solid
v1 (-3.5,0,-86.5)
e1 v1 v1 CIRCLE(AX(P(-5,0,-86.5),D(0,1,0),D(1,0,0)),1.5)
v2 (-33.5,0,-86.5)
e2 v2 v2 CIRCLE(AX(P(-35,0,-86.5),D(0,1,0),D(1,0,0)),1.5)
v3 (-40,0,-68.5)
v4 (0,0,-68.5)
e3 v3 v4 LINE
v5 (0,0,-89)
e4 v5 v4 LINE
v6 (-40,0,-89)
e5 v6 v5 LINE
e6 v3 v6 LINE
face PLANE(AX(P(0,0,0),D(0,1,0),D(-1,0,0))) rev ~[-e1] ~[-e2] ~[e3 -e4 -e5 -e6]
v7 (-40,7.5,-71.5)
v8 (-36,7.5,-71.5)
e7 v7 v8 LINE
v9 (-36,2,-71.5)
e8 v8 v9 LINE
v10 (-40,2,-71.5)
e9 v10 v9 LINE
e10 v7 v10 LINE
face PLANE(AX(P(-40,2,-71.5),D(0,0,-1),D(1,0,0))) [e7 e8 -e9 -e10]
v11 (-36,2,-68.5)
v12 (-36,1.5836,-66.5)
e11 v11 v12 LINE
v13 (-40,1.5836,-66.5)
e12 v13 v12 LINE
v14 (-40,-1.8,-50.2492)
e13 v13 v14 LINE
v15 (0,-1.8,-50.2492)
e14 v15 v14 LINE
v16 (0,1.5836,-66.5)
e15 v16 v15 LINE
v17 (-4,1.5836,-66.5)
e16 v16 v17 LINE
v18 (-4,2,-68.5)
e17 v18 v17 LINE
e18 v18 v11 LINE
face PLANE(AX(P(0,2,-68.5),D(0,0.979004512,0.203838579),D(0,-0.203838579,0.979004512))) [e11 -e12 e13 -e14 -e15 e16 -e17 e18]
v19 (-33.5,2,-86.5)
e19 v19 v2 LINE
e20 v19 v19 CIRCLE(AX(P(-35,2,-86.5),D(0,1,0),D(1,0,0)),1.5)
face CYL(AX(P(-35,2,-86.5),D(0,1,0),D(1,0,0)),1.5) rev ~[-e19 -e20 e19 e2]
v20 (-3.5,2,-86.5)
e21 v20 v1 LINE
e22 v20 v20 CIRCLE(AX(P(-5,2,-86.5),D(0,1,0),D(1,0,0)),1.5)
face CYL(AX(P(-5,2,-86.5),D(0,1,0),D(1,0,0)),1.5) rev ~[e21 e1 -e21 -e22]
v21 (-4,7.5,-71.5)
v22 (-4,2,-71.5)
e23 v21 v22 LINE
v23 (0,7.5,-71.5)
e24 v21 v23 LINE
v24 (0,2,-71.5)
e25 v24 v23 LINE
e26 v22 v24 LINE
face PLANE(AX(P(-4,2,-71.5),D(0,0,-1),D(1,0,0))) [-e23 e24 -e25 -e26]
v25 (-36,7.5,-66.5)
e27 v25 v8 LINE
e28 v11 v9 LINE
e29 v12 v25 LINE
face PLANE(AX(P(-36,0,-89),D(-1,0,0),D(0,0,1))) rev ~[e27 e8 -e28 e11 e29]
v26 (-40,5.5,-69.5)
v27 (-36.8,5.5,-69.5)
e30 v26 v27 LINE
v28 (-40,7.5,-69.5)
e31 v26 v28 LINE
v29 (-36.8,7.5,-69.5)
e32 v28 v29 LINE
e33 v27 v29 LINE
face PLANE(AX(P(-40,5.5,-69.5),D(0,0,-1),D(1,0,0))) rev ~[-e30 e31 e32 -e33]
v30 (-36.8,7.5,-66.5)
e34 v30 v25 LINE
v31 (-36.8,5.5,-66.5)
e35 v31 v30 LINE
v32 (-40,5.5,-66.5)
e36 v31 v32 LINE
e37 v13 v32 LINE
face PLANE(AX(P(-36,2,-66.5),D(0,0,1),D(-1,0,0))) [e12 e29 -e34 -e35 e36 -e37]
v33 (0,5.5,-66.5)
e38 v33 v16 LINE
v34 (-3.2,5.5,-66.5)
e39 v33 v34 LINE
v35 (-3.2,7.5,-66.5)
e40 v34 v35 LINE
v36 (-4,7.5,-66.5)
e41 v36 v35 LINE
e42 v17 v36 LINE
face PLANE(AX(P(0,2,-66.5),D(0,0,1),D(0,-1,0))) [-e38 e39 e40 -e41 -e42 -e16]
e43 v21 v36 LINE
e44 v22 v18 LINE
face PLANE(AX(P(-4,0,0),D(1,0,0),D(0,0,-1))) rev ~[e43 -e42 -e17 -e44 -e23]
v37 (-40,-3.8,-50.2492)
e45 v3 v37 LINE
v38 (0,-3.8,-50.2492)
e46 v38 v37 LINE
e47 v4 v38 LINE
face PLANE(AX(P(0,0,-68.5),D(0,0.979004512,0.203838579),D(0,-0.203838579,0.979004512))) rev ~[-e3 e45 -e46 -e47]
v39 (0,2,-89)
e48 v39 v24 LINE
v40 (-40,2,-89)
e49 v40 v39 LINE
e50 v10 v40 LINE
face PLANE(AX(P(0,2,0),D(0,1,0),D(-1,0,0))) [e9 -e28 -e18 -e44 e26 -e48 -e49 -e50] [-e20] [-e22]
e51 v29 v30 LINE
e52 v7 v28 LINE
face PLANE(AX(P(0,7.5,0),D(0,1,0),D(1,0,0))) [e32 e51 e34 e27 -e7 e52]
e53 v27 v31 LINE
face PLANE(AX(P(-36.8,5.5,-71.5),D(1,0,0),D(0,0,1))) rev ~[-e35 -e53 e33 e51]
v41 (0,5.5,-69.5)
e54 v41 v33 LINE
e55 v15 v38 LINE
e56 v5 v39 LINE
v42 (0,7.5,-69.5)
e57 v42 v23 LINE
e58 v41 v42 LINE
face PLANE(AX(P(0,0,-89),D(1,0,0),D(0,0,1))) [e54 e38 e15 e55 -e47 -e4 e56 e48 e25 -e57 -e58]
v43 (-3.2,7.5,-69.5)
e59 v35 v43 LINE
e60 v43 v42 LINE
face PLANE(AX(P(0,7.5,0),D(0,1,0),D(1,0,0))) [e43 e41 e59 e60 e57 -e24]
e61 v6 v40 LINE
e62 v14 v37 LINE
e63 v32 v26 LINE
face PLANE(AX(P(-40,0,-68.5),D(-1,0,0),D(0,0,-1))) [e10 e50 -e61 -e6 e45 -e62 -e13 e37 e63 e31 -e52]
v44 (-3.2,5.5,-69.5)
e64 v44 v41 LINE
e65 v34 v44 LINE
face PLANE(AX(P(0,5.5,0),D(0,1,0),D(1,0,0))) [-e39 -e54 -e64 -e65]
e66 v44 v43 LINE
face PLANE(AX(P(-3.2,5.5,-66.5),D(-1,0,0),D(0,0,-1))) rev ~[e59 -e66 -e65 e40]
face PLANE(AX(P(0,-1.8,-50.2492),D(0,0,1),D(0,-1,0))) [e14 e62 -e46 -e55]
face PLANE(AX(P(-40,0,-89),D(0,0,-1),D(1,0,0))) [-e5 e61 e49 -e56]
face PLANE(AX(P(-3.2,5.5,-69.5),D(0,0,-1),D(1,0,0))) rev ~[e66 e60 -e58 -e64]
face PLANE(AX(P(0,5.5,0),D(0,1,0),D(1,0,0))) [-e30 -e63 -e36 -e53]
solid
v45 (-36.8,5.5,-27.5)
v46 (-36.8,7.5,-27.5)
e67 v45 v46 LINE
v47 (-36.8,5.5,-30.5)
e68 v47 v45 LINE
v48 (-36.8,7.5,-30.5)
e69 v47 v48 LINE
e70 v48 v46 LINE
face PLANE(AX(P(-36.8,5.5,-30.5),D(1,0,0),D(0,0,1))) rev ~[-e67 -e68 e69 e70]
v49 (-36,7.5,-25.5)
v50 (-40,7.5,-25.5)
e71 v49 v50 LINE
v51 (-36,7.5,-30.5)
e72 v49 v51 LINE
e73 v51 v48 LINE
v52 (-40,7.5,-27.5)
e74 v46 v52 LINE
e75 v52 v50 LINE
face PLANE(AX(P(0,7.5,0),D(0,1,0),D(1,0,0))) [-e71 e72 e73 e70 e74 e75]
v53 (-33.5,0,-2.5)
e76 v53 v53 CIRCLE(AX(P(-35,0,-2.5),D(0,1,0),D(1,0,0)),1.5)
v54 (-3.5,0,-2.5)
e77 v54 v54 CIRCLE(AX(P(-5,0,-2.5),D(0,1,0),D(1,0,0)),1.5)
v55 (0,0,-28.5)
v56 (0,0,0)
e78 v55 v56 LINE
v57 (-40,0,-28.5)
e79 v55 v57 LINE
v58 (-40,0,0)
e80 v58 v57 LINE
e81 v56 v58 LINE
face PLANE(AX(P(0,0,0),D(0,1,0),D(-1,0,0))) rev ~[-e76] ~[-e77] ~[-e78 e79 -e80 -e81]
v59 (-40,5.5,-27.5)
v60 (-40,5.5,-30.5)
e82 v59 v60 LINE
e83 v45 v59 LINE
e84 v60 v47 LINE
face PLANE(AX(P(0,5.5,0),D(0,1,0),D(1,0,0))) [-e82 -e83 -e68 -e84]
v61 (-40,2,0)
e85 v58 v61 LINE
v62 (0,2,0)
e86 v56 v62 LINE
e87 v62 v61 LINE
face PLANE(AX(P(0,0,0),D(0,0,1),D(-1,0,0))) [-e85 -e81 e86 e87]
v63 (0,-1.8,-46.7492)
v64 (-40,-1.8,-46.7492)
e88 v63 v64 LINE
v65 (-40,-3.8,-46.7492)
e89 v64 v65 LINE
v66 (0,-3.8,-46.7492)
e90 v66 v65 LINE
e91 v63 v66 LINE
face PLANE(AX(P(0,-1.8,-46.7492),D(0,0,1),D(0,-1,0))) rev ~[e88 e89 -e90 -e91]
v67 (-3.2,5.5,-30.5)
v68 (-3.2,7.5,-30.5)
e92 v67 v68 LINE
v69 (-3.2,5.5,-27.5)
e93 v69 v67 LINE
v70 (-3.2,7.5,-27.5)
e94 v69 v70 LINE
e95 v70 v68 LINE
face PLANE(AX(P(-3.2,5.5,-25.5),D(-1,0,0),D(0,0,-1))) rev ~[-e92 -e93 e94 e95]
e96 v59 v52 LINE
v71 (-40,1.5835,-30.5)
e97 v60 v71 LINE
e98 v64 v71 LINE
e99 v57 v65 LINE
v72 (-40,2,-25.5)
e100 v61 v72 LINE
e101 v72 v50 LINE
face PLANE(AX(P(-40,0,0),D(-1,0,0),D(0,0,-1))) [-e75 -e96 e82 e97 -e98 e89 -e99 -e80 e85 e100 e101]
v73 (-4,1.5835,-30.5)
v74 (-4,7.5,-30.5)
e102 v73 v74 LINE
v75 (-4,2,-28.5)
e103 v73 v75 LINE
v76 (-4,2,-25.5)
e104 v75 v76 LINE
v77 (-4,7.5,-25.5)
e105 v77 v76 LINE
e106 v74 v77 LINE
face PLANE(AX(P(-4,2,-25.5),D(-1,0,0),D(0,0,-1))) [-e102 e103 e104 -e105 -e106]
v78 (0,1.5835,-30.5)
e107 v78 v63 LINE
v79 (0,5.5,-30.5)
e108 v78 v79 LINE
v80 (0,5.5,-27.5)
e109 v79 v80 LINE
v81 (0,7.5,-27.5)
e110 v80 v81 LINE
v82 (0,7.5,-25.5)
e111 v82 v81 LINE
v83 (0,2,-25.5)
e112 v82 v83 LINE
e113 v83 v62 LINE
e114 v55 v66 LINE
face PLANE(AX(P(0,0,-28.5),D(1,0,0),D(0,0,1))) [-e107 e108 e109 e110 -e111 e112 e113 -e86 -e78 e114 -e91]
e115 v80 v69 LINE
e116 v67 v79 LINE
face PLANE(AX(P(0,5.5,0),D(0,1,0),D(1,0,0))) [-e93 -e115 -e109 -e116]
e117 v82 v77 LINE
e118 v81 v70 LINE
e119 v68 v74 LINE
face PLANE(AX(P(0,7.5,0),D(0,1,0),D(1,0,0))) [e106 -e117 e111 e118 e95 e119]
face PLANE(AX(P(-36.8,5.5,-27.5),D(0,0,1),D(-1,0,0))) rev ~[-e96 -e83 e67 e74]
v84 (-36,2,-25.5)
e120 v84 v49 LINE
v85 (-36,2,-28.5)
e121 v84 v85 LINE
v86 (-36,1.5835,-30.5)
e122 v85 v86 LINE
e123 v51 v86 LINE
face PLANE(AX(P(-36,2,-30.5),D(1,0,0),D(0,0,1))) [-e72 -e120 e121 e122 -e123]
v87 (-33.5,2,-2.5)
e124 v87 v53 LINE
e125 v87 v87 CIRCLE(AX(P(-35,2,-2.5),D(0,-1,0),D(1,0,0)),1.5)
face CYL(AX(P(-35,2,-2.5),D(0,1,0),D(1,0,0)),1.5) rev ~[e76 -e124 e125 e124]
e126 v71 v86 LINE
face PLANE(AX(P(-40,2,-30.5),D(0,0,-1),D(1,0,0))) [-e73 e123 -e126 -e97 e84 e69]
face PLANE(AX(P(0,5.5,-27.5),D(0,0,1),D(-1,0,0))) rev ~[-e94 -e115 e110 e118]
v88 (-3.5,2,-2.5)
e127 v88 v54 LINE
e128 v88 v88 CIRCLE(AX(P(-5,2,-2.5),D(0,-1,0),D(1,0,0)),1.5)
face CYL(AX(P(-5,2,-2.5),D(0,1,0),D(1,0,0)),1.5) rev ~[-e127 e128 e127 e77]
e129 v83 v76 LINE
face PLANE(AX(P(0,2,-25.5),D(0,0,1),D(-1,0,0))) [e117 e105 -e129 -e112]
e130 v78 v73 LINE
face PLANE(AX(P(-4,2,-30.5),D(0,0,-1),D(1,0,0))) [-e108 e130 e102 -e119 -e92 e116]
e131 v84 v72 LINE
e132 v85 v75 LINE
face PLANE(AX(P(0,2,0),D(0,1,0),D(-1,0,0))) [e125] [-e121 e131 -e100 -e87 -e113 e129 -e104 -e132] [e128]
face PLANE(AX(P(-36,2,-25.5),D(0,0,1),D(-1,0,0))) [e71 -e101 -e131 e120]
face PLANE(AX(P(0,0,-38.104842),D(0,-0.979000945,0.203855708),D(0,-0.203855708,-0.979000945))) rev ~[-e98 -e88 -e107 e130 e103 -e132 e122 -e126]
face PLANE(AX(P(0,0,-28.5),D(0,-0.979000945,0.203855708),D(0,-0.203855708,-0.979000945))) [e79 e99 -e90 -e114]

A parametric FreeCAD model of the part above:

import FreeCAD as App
import Part
import Sketcher
from FreeCAD import Vector
Q = App.Units.Quantity

doc = App.newDocument("Part")
body = doc.addObject("PartDesign::Body", "Body")
body.AllowCompound = True

# Sketch on XZ plane
sketch1 = body.newObject("Sketcher::SketchObject", "Sketch")
sketch1.AttachmentSupport = (doc.getObject("XZ_Plane"), [""])
sketch1.MapMode = "FlatFace"
sketch1.addGeometry([
    Part.LineSegment(Vector(-40, -68, 0), Vector(0, -68, 0)),  # 0
    Part.LineSegment(Vector(0, -68, 0), Vector(0, -89, 0)),  # 1
    Part.LineSegment(Vector(0, -89, 0), Vector(-40, -89, 0)),  # 2
    Part.LineSegment(Vector(-40, -89, 0), Vector(-40, -68, 0)),  # 3
    Part.LineSegment(Vector(-40, 0, 0), Vector(0, 0, 0)),  # 4
    Part.LineSegment(Vector(0, 0, 0), Vector(0, -28, 0)),  # 5
    Part.LineSegment(Vector(0, -28, 0), Vector(-40, -28, 0)),  # 6
    Part.LineSegment(Vector(-40, -28, 0), Vector(-40, 0, 0)),  # 7
], False)
sketch1.addConstraint([
    Sketcher.Constraint("Coincident", 0, 2, 1, 1),
    Sketcher.Constraint("Coincident", 1, 2, 2, 1),
    Sketcher.Constraint("Coincident", 2, 2, 3, 1),
    Sketcher.Constraint("Coincident", 3, 2, 0, 1),
    Sketcher.Constraint("Coincident", 4, 2, 5, 1),
    Sketcher.Constraint("Coincident", 5, 2, 6, 1),
    Sketcher.Constraint("Coincident", 6, 2, 7, 1),
    Sketcher.Constraint("Coincident", 7, 2, 4, 1),
    Sketcher.Constraint("Horizontal", 0),
    Sketcher.Constraint("Vertical", 1),
    Sketcher.Constraint("Horizontal", 2),
    Sketcher.Constraint("Vertical", 3),
    Sketcher.Constraint("Horizontal", 4),
    Sketcher.Constraint("Vertical", 5),
    Sketcher.Constraint("Horizontal", 6),
    Sketcher.Constraint("Vertical", 7),
    Sketcher.Constraint("Coincident", 4, 2, -1, 1),
    Sketcher.Constraint("PointOnObject", 0, 2, -2),
    Sketcher.Constraint("Vertical", 3, 2, 6, 2),
    Sketcher.Constraint("DistanceX", 0, 1, 0, 2, Q("40 mm")),
    Sketcher.Constraint("DistanceY", 1, 2, 1, 1, Q("20.5 mm")),
    Sketcher.Constraint("DistanceY", 5, 2, 5, 1, Q("28.5 mm")),
    Sketcher.Constraint("DistanceY", 0, 2, 5, 2, Q("40 mm")),
])
pad1 = body.newObject("PartDesign::Pad", "Pad")
pad1.Profile = sketch1
pad1.Length = 2
pad1.Reversed = True

# Sketch on YZ plane
sketch2 = body.newObject("Sketcher::SketchObject", "Sketch001")
sketch2.AttachmentSupport = (doc.getObject("YZ_Plane"), [""])
sketch2.MapMode = "FlatFace"
sketch2.addGeometry([
    Part.LineSegment(Vector(-1.8, -50.2, 0), Vector(-3.8, -50.2, 0)),  # 0
    Part.LineSegment(Vector(-3.8, -50.2, 0), Vector(0, -68.5, 0)),  # 1
    Part.LineSegment(Vector(0, -68.5, 0), Vector(2, -68.5, 0)),  # 2
    Part.LineSegment(Vector(2, -68.5, 0), Vector(-1.8, -50.2, 0)),  # 3
    Part.LineSegment(Vector(-1.8, -46.7, 0), Vector(2, -28.5, 0)),  # 4
    Part.LineSegment(Vector(2, -28.5, 0), Vector(0, -28.5, 0)),  # 5
    Part.LineSegment(Vector(0, -28.5, 0), Vector(-3.8, -46.7, 0)),  # 6
    Part.LineSegment(Vector(-3.8, -46.7, 0), Vector(-1.8, -46.7, 0)),  # 7
], False)
sketch2.addConstraint([
    Sketcher.Constraint("Coincident", 0, 2, 1, 1),
    Sketcher.Constraint("Coincident", 1, 2, 2, 1),
    Sketcher.Constraint("Coincident", 2, 2, 3, 1),
    Sketcher.Constraint("Coincident", 3, 2, 0, 1),
    Sketcher.Constraint("Coincident", 4, 2, 5, 1),
    Sketcher.Constraint("Coincident", 5, 2, 6, 1),
    Sketcher.Constraint("Coincident", 6, 2, 7, 1),
    Sketcher.Constraint("Coincident", 7, 2, 4, 1),
    Sketcher.Constraint("Horizontal", 0),
    Sketcher.Constraint("Horizontal", 2),
    Sketcher.Constraint("Horizontal", 5),
    Sketcher.Constraint("Horizontal", 7),
    Sketcher.Constraint("PointOnObject", 1, 2, -2),
    Sketcher.Constraint("PointOnObject", 5, 2, -2),
    Sketcher.Constraint("Parallel", 1, 3),
    Sketcher.Constraint("Parallel", 4, 6),
    Sketcher.Constraint("Vertical", 2, 2, 4, 2),
    Sketcher.Constraint("Vertical", 0, 2, 6, 2),
    Sketcher.Constraint("DistanceX", 0, 2, 0, 1, Q("2 mm")),
    Sketcher.Constraint("DistanceY", 2, 2, 4, 2, Q("40 mm")),
    Sketcher.Constraint("DistanceX", 0, 2, -1, 1, Q("3.8 mm")),
    Sketcher.Constraint("DistanceY", 1, 2, -1, 1, Q("68.5 mm")),
    Sketcher.Constraint("DistanceY", 0, 2, 6, 2, Q("3.5 mm")),
    Sketcher.Constraint("Distance", 1, Q("18.6422 mm")),
])
pad2 = body.newObject("PartDesign::Pad", "Pad001")
pad2.Profile = sketch2
pad2.Length = 40
pad2.Reversed = True

# Sketch on XZ plane
sketch3 = body.newObject("Sketcher::SketchObject", "Sketch002")
sketch3.AttachmentSupport = (doc.getObject("XZ_Plane"), [""])
sketch3.MapMode = "FlatFace"
sketch3.AttachmentOffset = App.Placement(Vector(0, 0, -2), App.Rotation())
sketch3.addGeometry([
    Part.LineSegment(Vector(-36, -30.5, 0), Vector(-40, -30.5, 0)),  # 0
    Part.LineSegment(Vector(-40, -30.5, 0), Vector(-40, -25.5, 0)),  # 1
    Part.LineSegment(Vector(-40, -25.5, 0), Vector(-36, -25.5, 0)),  # 2
    Part.LineSegment(Vector(-36, -25.5, 0), Vector(-36, -30.5, 0)),  # 3
    Part.LineSegment(Vector(-36, -66.5, 0), Vector(-36, -71.5, 0)),  # 4
    Part.LineSegment(Vector(-36, -71.5, 0), Vector(-40, -71.5, 0)),  # 5
    Part.LineSegment(Vector(-40, -71.5, 0), Vector(-40, -66.5, 0)),  # 6
    Part.LineSegment(Vector(-40, -66.5, 0), Vector(-36, -66.5, 0)),  # 7
    Part.LineSegment(Vector(0, -25.5, 0), Vector(0, -30.5, 0)),  # 8
    Part.LineSegment(Vector(0, -30.5, 0), Vector(-4, -30.5, 0)),  # 9
    Part.LineSegment(Vector(-4, -30.5, 0), Vector(-4, -25.5, 0)),  # 10
    Part.LineSegment(Vector(-4, -25.5, 0), Vector(0, -25.5, 0)),  # 11
    Part.LineSegment(Vector(0, -71.5, 0), Vector(-4, -71.5, 0)),  # 12
    Part.LineSegment(Vector(-4, -71.5, 0), Vector(-4, -66.5, 0)),  # 13
    Part.LineSegment(Vector(-4, -66.5, 0), Vector(0, -66.5, 0)),  # 14
    Part.LineSegment(Vector(0, -66.5, 0), Vector(0, -71.5, 0)),  # 15
], False)
sketch3.addConstraint([
    Sketcher.Constraint("Coincident", 0, 2, 1, 1),
    Sketcher.Constraint("Coincident", 1, 2, 2, 1),
    Sketcher.Constraint("Coincident", 2, 2, 3, 1),
    Sketcher.Constraint("Coincident", 3, 2, 0, 1),
    Sketcher.Constraint("Coincident", 4, 2, 5, 1),
    Sketcher.Constraint("Coincident", 5, 2, 6, 1),
    Sketcher.Constraint("Coincident", 6, 2, 7, 1),
    Sketcher.Constraint("Coincident", 7, 2, 4, 1),
    Sketcher.Constraint("Coincident", 8, 2, 9, 1),
    Sketcher.Constraint("Coincident", 9, 2, 10, 1),
    Sketcher.Constraint("Coincident", 10, 2, 11, 1),
    Sketcher.Constraint("Coincident", 11, 2, 8, 1),
    Sketcher.Constraint("Coincident", 12, 2, 13, 1),
    Sketcher.Constraint("Coincident", 13, 2, 14, 1),
    Sketcher.Constraint("Coincident", 14, 2, 15, 1),
    Sketcher.Constraint("Coincident", 15, 2, 12, 1),
    Sketcher.Constraint("Horizontal", 0),
    Sketcher.Constraint("Vertical", 1),
    Sketcher.Constraint("Horizontal", 2),
    Sketcher.Constraint("Vertical", 3),
    Sketcher.Constraint("Vertical", 4),
    Sketcher.Constraint("Horizontal", 5),
    Sketcher.Constraint("Vertical", 6),
    Sketcher.Constraint("Horizontal", 7),
    Sketcher.Constraint("Vertical", 8),
    Sketcher.Constraint("Horizontal", 9),
    Sketcher.Constraint("Vertical", 10),
    Sketcher.Constraint("Horizontal", 11),
    Sketcher.Constraint("Horizontal", 12),
    Sketcher.Constraint("Vertical", 13),
    Sketcher.Constraint("Horizontal", 14),
    Sketcher.Constraint("Vertical", 15),
    Sketcher.Constraint("PointOnObject", 8, 2, -2),
    Sketcher.Constraint("PointOnObject", 14, 2, -2),
    Sketcher.Constraint("Horizontal", 3, 2, 8, 2),
    Sketcher.Constraint("Horizontal", 2, 2, 10, 2),
    Sketcher.Constraint("Horizontal", 5, 2, 12, 2),
    Sketcher.Constraint("Horizontal", 7, 2, 13, 2),
    Sketcher.Constraint("Vertical", 3, 2, 4, 2),
    Sketcher.Constraint("Vertical", 1, 2, 5, 2),
    Sketcher.Constraint("Vertical", 10, 2, 12, 2),
    Sketcher.Constraint("Equal", 7, 9),
    Sketcher.Constraint("Equal", 3, 4),
    Sketcher.Constraint("DistanceX", 0, 2, 0, 1, Q("4 mm")),
    Sketcher.Constraint("DistanceX", 2, 2, -1, 1, Q("36 mm")),
    Sketcher.Constraint("DistanceY", 4, 2, 3, 2, Q("41 mm")),
    Sketcher.Constraint("DistanceY", 6, 2, 0, 2, Q("36 mm")),
    Sketcher.Constraint("DistanceY", 0, 2, -1, 1, Q("30.5 mm")),
])
pad3 = body.newObject("PartDesign::Pad", "Pad002")
pad3.Profile = sketch3
pad3.Length = 3.5
pad3.Reversed = True

# Sketch on YZ plane
sketch4 = body.newObject("Sketcher::SketchObject", "Sketch003")
sketch4.AttachmentSupport = (doc.getObject("YZ_Plane"), [""])
sketch4.MapMode = "FlatFace"
sketch4.AttachmentOffset = App.Placement(Vector(0, 0, -40), App.Rotation())
sketch4.addGeometry([
    Part.LineSegment(Vector(1.58, -66.5, 0), Vector(2, -66.5, 0)),  # 0
    Part.LineSegment(Vector(2, -66.5, 0), Vector(2, -68.5, 0)),  # 1
    Part.LineSegment(Vector(2, -68.5, 0), Vector(1.58, -66.5, 0)),  # 2
    Part.LineSegment(Vector(2, -28.5, 0), Vector(2, -30.5, 0)),  # 3
    Part.LineSegment(Vector(2, -30.5, 0), Vector(1.58, -30.5, 0)),  # 4
    Part.LineSegment(Vector(1.58, -30.5, 0), Vector(2, -28.5, 0)),  # 5
], False)
sketch4.addConstraint([
    Sketcher.Constraint("Coincident", 0, 2, 1, 1),
    Sketcher.Constraint("Coincident", 1, 2, 2, 1),
    Sketcher.Constraint("Coincident", 2, 2, 0, 1),
    Sketcher.Constraint("Coincident", 3, 2, 4, 1),
    Sketcher.Constraint("Coincident", 4, 2, 5, 1),
    Sketcher.Constraint("Coincident", 5, 2, 3, 1),
    Sketcher.Constraint("Horizontal", 0),
    Sketcher.Constraint("Vertical", 1),
    Sketcher.Constraint("Vertical", 3),
    Sketcher.Constraint("Horizontal", 4),
    Sketcher.Constraint("Vertical", 1, 2, 3, 2),
    Sketcher.Constraint("Vertical", 2, 2, 4, 2),
    Sketcher.Constraint("Equal", 1, 3),
    Sketcher.Constraint("DistanceY", 1, 2, 1, 1, Q("2 mm")),
    Sketcher.Constraint("DistanceX", -1, 1, 0, 2, Q("2 mm")),
    Sketcher.Constraint("DistanceY", 0, 2, 3, 2, Q("36 mm")),
    Sketcher.Constraint("DistanceY", 0, 2, -1, 1, Q("66.5 mm")),
    Sketcher.Constraint("Angle", 2, Q("101.761 deg")),
])
pad4 = body.newObject("PartDesign::Pad", "Pad003")
pad4.Profile = sketch4
pad4.Length = 4

# Sketch on XZ plane
sketch5 = body.newObject("Sketcher::SketchObject", "Sketch004")
sketch5.AttachmentSupport = (doc.getObject("XZ_Plane"), [""])
sketch5.MapMode = "FlatFace"
sketch5.AttachmentOffset = App.Placement(Vector(0, 0, -5.5), App.Rotation())
sketch5.addGeometry([
    Part.LineSegment(Vector(-36.8, -25.5, 0), Vector(-36, -25.5, 0)),  # 0
    Part.LineSegment(Vector(-36, -25.5, 0), Vector(-36, -30.5, 0)),  # 1
    Part.LineSegment(Vector(-36, -30.5, 0), Vector(-36.8, -30.5, 0)),  # 2
    Part.LineSegment(Vector(-36.8, -30.5, 0), Vector(-36.8, -25.5, 0)),  # 3
    Part.LineSegment(Vector(-36.8, -66.5, 0), Vector(-36, -66.5, 0)),  # 4
    Part.LineSegment(Vector(-36, -66.5, 0), Vector(-36, -71.5, 0)),  # 5
    Part.LineSegment(Vector(-36, -71.5, 0), Vector(-36.8, -71.5, 0)),  # 6
    Part.LineSegment(Vector(-36.8, -71.5, 0), Vector(-36.8, -66.5, 0)),  # 7
    Part.LineSegment(Vector(-3.2, -30.5, 0), Vector(-4, -30.5, 0)),  # 8
    Part.LineSegment(Vector(-4, -30.5, 0), Vector(-4, -25.5, 0)),  # 9
    Part.LineSegment(Vector(-4, -25.5, 0), Vector(-3.2, -25.5, 0)),  # 10
    Part.LineSegment(Vector(-3.2, -25.5, 0), Vector(-3.2, -30.5, 0)),  # 11
    Part.LineSegment(Vector(-3.2, -71.5, 0), Vector(-4, -71.5, 0)),  # 12
    Part.LineSegment(Vector(-4, -71.5, 0), Vector(-4, -66.5, 0)),  # 13
    Part.LineSegment(Vector(-4, -66.5, 0), Vector(-3.2, -66.5, 0)),  # 14
    Part.LineSegment(Vector(-3.2, -66.5, 0), Vector(-3.2, -71.5, 0)),  # 15
], False)
sketch5.addConstraint([
    Sketcher.Constraint("Coincident", 0, 2, 1, 1),
    Sketcher.Constraint("Coincident", 1, 2, 2, 1),
    Sketcher.Constraint("Coincident", 2, 2, 3, 1),
    Sketcher.Constraint("Coincident", 3, 2, 0, 1),
    Sketcher.Constraint("Coincident", 4, 2, 5, 1),
    Sketcher.Constraint("Coincident", 5, 2, 6, 1),
    Sketcher.Constraint("Coincident", 6, 2, 7, 1),
    Sketcher.Constraint("Coincident", 7, 2, 4, 1),
    Sketcher.Constraint("Coincident", 8, 2, 9, 1),
    Sketcher.Constraint("Coincident", 9, 2, 10, 1),
    Sketcher.Constraint("Coincident", 10, 2, 11, 1),
    Sketcher.Constraint("Coincident", 11, 2, 8, 1),
    Sketcher.Constraint("Coincident", 12, 2, 13, 1),
    Sketcher.Constraint("Coincident", 13, 2, 14, 1),
    Sketcher.Constraint("Coincident", 14, 2, 15, 1),
    Sketcher.Constraint("Coincident", 15, 2, 12, 1),
    Sketcher.Constraint("Horizontal", 0),
    Sketcher.Constraint("Vertical", 1),
    Sketcher.Constraint("Horizontal", 2),
    Sketcher.Constraint("Vertical", 3),
    Sketcher.Constraint("Horizontal", 4),
    Sketcher.Constraint("Vertical", 5),
    Sketcher.Constraint("Horizontal", 6),
    Sketcher.Constraint("Vertical", 7),
    Sketcher.Constraint("Horizontal", 8),
    Sketcher.Constraint("Vertical", 9),
    Sketcher.Constraint("Horizontal", 10),
    Sketcher.Constraint("Vertical", 11),
    Sketcher.Constraint("Horizontal", 12),
    Sketcher.Constraint("Vertical", 13),
    Sketcher.Constraint("Horizontal", 14),
    Sketcher.Constraint("Vertical", 15),
    Sketcher.Constraint("Horizontal", 2, 2, 8, 2),
    Sketcher.Constraint("Horizontal", 3, 2, 9, 2),
    Sketcher.Constraint("Horizontal", 6, 2, 12, 2),
    Sketcher.Constraint("Horizontal", 7, 2, 13, 2),
    Sketcher.Constraint("Vertical", 1, 2, 4, 2),
    Sketcher.Constraint("Vertical", 3, 2, 6, 2),
    Sketcher.Constraint("Vertical", 9, 2, 12, 2),
    Sketcher.Constraint("Vertical", 11, 2, 14, 2),
    Sketcher.Constraint("Equal", 6, 8),
    Sketcher.Constraint("Equal", 3, 5),
    Sketcher.Constraint("DistanceX", 0, 1, 0, 2, Q("0.8 mm")),
    Sketcher.Constraint("DistanceY", 4, 2, 0, 2, Q("41 mm")),
    Sketcher.Constraint("DistanceX", 2, 2, 8, 2, Q("32.8 mm")),
    Sketcher.Constraint("DistanceY", 1, 2, 1, 1, Q("5 mm")),
    Sketcher.Constraint("DistanceX", 0, 2, -1, 1, Q("36 mm")),
    Sketcher.Constraint("DistanceY", 0, 2, -1, 1, Q("25.5 mm")),
])
pad5 = body.newObject("PartDesign::Pad", "Pad004")
pad5.Profile = sketch5
pad5.Length = 2
pad5.Reversed = True

# Sketch on XZ plane
sketch6 = body.newObject("Sketcher::SketchObject", "Sketch005")
sketch6.AttachmentSupport = (doc.getObject("XZ_Plane"), [""])
sketch6.MapMode = "FlatFace"
sketch6.AttachmentOffset = App.Placement(Vector(0, 0, -5.5), App.Rotation())
sketch6.addGeometry([
    Part.LineSegment(Vector(-36.8, -25.5, 0), Vector(-36.8, -27.5, 0)),  # 0
    Part.LineSegment(Vector(-36.8, -27.5, 0), Vector(-40, -27.5, 0)),  # 1
    Part.LineSegment(Vector(-40, -27.5, 0), Vector(-40, -25.5, 0)),  # 2
    Part.LineSegment(Vector(-40, -25.5, 0), Vector(-36.8, -25.5, 0)),  # 3
    Part.LineSegment(Vector(-36.8, -69.5, 0), Vector(-36.8, -71.5, 0)),  # 4
    Part.LineSegment(Vector(-36.8, -71.5, 0), Vector(-40, -71.5, 0)),  # 5
    Part.LineSegment(Vector(-40, -71.5, 0), Vector(-40, -69.5, 0)),  # 6
    Part.LineSegment(Vector(-40, -69.5, 0), Vector(-36.8, -69.5, 0)),  # 7
    Part.LineSegment(Vector(0, -71.5, 0), Vector(-3.2, -71.5, 0)),  # 8
    Part.LineSegment(Vector(-3.2, -71.5, 0), Vector(-3.2, -69.5, 0)),  # 9
    Part.LineSegment(Vector(-3.2, -69.5, 0), Vector(0, -69.5, 0)),  # 10
    Part.LineSegment(Vector(0, -69.5, 0), Vector(0, -71.5, 0)),  # 11
    Part.LineSegment(Vector(-3.2, -27.5, 0), Vector(-3.2, -25.5, 0)),  # 12
    Part.LineSegment(Vector(-3.2, -25.5, 0), Vector(0, -25.5, 0)),  # 13
    Part.LineSegment(Vector(0, -25.5, 0), Vector(0, -27.5, 0)),  # 14
    Part.LineSegment(Vector(0, -27.5, 0), Vector(-3.2, -27.5, 0)),  # 15
], False)
sketch6.addConstraint([
    Sketcher.Constraint("Coincident", 0, 2, 1, 1),
    Sketcher.Constraint("Coincident", 1, 2, 2, 1),
    Sketcher.Constraint("Coincident", 2, 2, 3, 1),
    Sketcher.Constraint("Coincident", 3, 2, 0, 1),
    Sketcher.Constraint("Coincident", 4, 2, 5, 1),
    Sketcher.Constraint("Coincident", 5, 2, 6, 1),
    Sketcher.Constraint("Coincident", 6, 2, 7, 1),
    Sketcher.Constraint("Coincident", 7, 2, 4, 1),
    Sketcher.Constraint("Coincident", 8, 2, 9, 1),
    Sketcher.Constraint("Coincident", 9, 2, 10, 1),
    Sketcher.Constraint("Coincident", 10, 2, 11, 1),
    Sketcher.Constraint("Coincident", 11, 2, 8, 1),
    Sketcher.Constraint("Coincident", 12, 2, 13, 1),
    Sketcher.Constraint("Coincident", 13, 2, 14, 1),
    Sketcher.Constraint("Coincident", 14, 2, 15, 1),
    Sketcher.Constraint("Coincident", 15, 2, 12, 1),
    Sketcher.Constraint("Vertical", 0),
    Sketcher.Constraint("Horizontal", 1),
    Sketcher.Constraint("Vertical", 2),
    Sketcher.Constraint("Horizontal", 3),
    Sketcher.Constraint("Vertical", 4),
    Sketcher.Constraint("Horizontal", 5),
    Sketcher.Constraint("Vertical", 6),
    Sketcher.Constraint("Horizontal", 7),
    Sketcher.Constraint("Horizontal", 8),
    Sketcher.Constraint("Vertical", 9),
    Sketcher.Constraint("Horizontal", 10),
    Sketcher.Constraint("Vertical", 11),
    Sketcher.Constraint("Vertical", 12),
    Sketcher.Constraint("Horizontal", 13),
    Sketcher.Constraint("Vertical", 14),
    Sketcher.Constraint("Horizontal", 15),
    Sketcher.Constraint("PointOnObject", 10, 2, -2),
    Sketcher.Constraint("PointOnObject", 13, 2, -2),
    Sketcher.Constraint("Horizontal", 5, 2, 8, 2),
    Sketcher.Constraint("Horizontal", 7, 2, 9, 2),
    Sketcher.Constraint("Horizontal", 3, 2, 12, 2),
    Sketcher.Constraint("Horizontal", 1, 2, 14, 2),
    Sketcher.Constraint("Vertical", 3, 2, 4, 2),
    Sketcher.Constraint("Vertical", 2, 2, 5, 2),
    Sketcher.Constraint("Vertical", 9, 2, 12, 2),
    Sketcher.Constraint("Equal", 7, 8),
    Sketcher.Constraint("Equal", 2, 4),
    Sketcher.Constraint("DistanceY", 0, 2, 0, 1, Q("2 mm")),
    Sketcher.Constraint("DistanceY", 4, 2, 0, 2, Q("44 mm")),
    Sketcher.Constraint("DistanceX", 0, 2, -1, 1, Q("36.8 mm")),
    Sketcher.Constraint("DistanceX", 1, 2, 1, 1, Q("3.2 mm")),
    Sketcher.Constraint("DistanceY", 0, 2, -1, 1, Q("27.5 mm")),
])
pad6 = body.newObject("PartDesign::Pad", "Pad005")
pad6.Profile = sketch6
pad6.Length = 2
pad6.Reversed = True

# Sketch on YZ plane
sketch7 = body.newObject("Sketcher::SketchObject", "Sketch006")
sketch7.AttachmentSupport = (doc.getObject("YZ_Plane"), [""])
sketch7.MapMode = "FlatFace"
sketch7.addGeometry([
    Part.LineSegment(Vector(2, -30.5, 0), Vector(2, -28.5, 0)),  # 0
    Part.LineSegment(Vector(2, -28.5, 0), Vector(1.58, -30.5, 0)),  # 1
    Part.LineSegment(Vector(1.58, -30.5, 0), Vector(2, -30.5, 0)),  # 2
    Part.LineSegment(Vector(2, -68.5, 0), Vector(2, -66.5, 0)),  # 3
    Part.LineSegment(Vector(2, -66.5, 0), Vector(1.58, -66.5, 0)),  # 4
    Part.LineSegment(Vector(1.58, -66.5, 0), Vector(2, -68.5, 0)),  # 5
], False)
sketch7.addConstraint([
    Sketcher.Constraint("Coincident", 0, 2, 1, 1),
    Sketcher.Constraint("Coincident", 1, 2, 2, 1),
    Sketcher.Constraint("Coincident", 2, 2, 0, 1),
    Sketcher.Constraint("Coincident", 3, 2, 4, 1),
    Sketcher.Constraint("Coincident", 4, 2, 5, 1),
    Sketcher.Constraint("Coincident", 5, 2, 3, 1),
    Sketcher.Constraint("Vertical", 0),
    Sketcher.Constraint("Horizontal", 2),
    Sketcher.Constraint("Vertical", 3),
    Sketcher.Constraint("Horizontal", 4),
    Sketcher.Constraint("Vertical", 2, 2, 3, 2),
    Sketcher.Constraint("Vertical", 1, 2, 4, 2),
    Sketcher.Constraint("Equal", 0, 3),
    Sketcher.Constraint("DistanceY", 0, 1, 0, 2, Q("2 mm")),
    Sketcher.Constraint("DistanceX", -1, 1, 0, 2, Q("2 mm")),
    Sketcher.Constraint("DistanceY", 3, 2, 2, 2, Q("36 mm")),
    Sketcher.Constraint("DistanceY", 0, 2, -1, 1, Q("28.5 mm")),
    Sketcher.Constraint("Distance", 1, Q("2.043 mm")),
])
pad7 = body.newObject("PartDesign::Pad", "Pad006")
pad7.Profile = sketch7
pad7.Length = 4
pad7.Reversed = True

# Sketch on XZ plane
sketch8 = body.newObject("Sketcher::SketchObject", "Sketch007")
sketch8.AttachmentSupport = (doc.getObject("XZ_Plane"), [""])
sketch8.MapMode = "FlatFace"
sketch8.AttachmentOffset = App.Placement(Vector(0, 0, -2), App.Rotation())
sketch8.addGeometry([
    Part.Circle(Vector(-35, -2.5, 0), Vector(0, 0, 1), 1.5),
    Part.Circle(Vector(-5, -2.5, 0), Vector(0, 0, 1), 1.5),
    Part.Circle(Vector(-5, -86.5, 0), Vector(0, 0, 1), 1.5),
    Part.Circle(Vector(-35, -86.5, 0), Vector(0, 0, 1), 1.5),
], False)
sketch8.addConstraint([
    Sketcher.Constraint("Equal", 0, 1),
    Sketcher.Constraint("Equal", 1, 2),
    Sketcher.Constraint("Equal", 2, 3),
    Sketcher.Constraint("Horizontal", 0, 3, 1, 3),
    Sketcher.Constraint("Horizontal", 2, 3, 3, 3),
    Sketcher.Constraint("Vertical", 1, 3, 2, 3),
    Sketcher.Constraint("Vertical", 0, 3, 3, 3),
    Sketcher.Constraint("Diameter", 0, Q("3 mm")),
    Sketcher.Constraint("DistanceX", 1, 3, -1, 1, Q("5 mm")),
    Sketcher.Constraint("DistanceY", 2, 3, 1, 3, Q("84 mm")),
    Sketcher.Constraint("DistanceY", 0, 3, -1, 1, Q("2.5 mm")),
    Sketcher.Constraint("DistanceX", 0, 3, -1, 1, Q("35 mm")),
])
pocket1 = body.newObject("PartDesign::Pocket", "Pocket")
pocket1.Profile = sketch8
pocket1.Length = 3
pocket1.Reversed = True

doc.recompute()
